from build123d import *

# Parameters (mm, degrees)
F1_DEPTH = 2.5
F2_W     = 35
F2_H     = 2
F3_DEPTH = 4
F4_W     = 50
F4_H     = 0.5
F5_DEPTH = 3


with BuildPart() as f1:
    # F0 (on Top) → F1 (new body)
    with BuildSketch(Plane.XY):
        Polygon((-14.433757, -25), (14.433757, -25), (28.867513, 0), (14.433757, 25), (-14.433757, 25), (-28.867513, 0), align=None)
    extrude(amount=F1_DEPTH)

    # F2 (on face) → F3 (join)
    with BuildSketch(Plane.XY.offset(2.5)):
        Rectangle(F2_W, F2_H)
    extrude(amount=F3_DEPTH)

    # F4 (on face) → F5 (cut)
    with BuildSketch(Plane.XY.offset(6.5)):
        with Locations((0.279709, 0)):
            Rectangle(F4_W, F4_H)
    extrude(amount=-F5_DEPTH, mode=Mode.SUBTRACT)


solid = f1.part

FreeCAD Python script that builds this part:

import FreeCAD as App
import Part
import Sketcher

V = App.Vector
Q = App.Units.Quantity


def add_polygon(sketch, points):
    """Adds a closed chain of lines whose ends are joined by coincident constraints."""
    first, n = sketch.GeometryCount, len(points)
    for a, b in zip(points, points[1:] + points[:1]):
        sketch.addGeometry(Part.LineSegment(App.Vector(*a, 0), App.Vector(*b, 0)), False)
    for i in range(n):
        sketch.addConstraint(Sketcher.Constraint("Coincident", first + i, 2, first + (i + 1) % n, 1))

doc = App.newDocument("Part")
body = doc.addObject("PartDesign::Body", "Body")

# Sketch on XY plane
sketch1 = body.newObject("Sketcher::SketchObject", "Sketch")
sketch1.AttachmentSupport = (doc.getObject("XY_Plane"), [""])
sketch1.MapMode = "FlatFace"
add_polygon(sketch1, [(-14, -25), (14, -25), (29, 0), (14, 25), (-14, 25), (-29, 0)])  # lines 0-5
sketch1.addConstraint([
    Sketcher.Constraint("Horizontal", 0),
    Sketcher.Constraint("Horizontal", 3),
    Sketcher.Constraint("Symmetric", 0, 2, 3, 2, -1, 1),
    Sketcher.Constraint("Symmetric", 1, 2, 4, 2, -1, 1),
    Sketcher.Constraint("PointOnObject", 1, 2, -1),
    Sketcher.Constraint("Parallel", 2, 5),
    Sketcher.Constraint("Vertical", 0, 2, 2, 2),
    Sketcher.Constraint("Angle", 1, Q("60.000001 deg")),
    Sketcher.Constraint("DistanceY", 0, 2, -1, 1, Q("25 mm")),
    Sketcher.Constraint("DistanceX", 0, 1, 0, 2, Q("28.867514 mm")),
])
pad1 = body.newObject("PartDesign::Pad", "Pad")
pad1.Profile = sketch1
pad1.Length = 2.5

# Sketch on XY plane
sketch2 = body.newObject("Sketcher::SketchObject", "Sketch001")
sketch2.AttachmentSupport = (doc.getObject("XY_Plane"), [""])
sketch2.MapMode = "FlatFace"
sketch2.AttachmentOffset = App.Placement(V(0, 0, 2.5), App.Rotation())
add_polygon(sketch2, [(-17.5, 1), (-17.5, -1), (17.5, -1), (17.5, 1)])  # lines 0-3
sketch2.addConstraint([
    Sketcher.Constraint("Vertical", 0),
    Sketcher.Constraint("Horizontal", 1),
    Sketcher.Constraint("Vertical", 2),
    Sketcher.Constraint("Horizontal", 3),
    Sketcher.Constraint("Symmetric", 0, 2, 2, 2, -1, 1),
    Sketcher.Constraint("DistanceX", 1, 1, 1, 2, Q("35 mm")),
    Sketcher.Constraint("DistanceY", 0, 2, 0, 1, Q("2 mm")),
])
pad2 = body.newObject("PartDesign::Pad", "Pad001")
pad2.Profile = sketch2
pad2.Length = 4

# Sketch on XY plane
sketch3 = body.newObject("Sketcher::SketchObject", "Sketch002")
sketch3.AttachmentSupport = (doc.getObject("XY_Plane"), [""])
sketch3.MapMode = "FlatFace"
sketch3.AttachmentOffset = App.Placement(V(0, 0, 6.5), App.Rotation())
add_polygon(sketch3, [(-24.7, 0.2), (-24.7, -0.2), (25.3, -0.2), (25.3, 0.2)])  # lines 0-3
sketch3.addConstraint([
    Sketcher.Constraint("Vertical", 0),
    Sketcher.Constraint("Horizontal", 1),
    Sketcher.Constraint("Vertical", 2),
    Sketcher.Constraint("Horizontal", 3),
    Sketcher.Constraint("DistanceX", 1, 1, 1, 2, Q("50 mm")),
    Sketcher.Constraint("DistanceY", 0, 2, 0, 1, Q("0.5 mm")),
    Sketcher.Constraint("DistanceY", 0, 2, -1, 1, Q("0.25 mm")),
    Sketcher.Constraint("DistanceX", 0, 2, -1, 1, Q("24.720291 mm")),
])
pocket1 = body.newObject("PartDesign::Pocket", "Pocket")
pocket1.Profile = sketch3
pocket1.Length = 3

doc.recompute()
